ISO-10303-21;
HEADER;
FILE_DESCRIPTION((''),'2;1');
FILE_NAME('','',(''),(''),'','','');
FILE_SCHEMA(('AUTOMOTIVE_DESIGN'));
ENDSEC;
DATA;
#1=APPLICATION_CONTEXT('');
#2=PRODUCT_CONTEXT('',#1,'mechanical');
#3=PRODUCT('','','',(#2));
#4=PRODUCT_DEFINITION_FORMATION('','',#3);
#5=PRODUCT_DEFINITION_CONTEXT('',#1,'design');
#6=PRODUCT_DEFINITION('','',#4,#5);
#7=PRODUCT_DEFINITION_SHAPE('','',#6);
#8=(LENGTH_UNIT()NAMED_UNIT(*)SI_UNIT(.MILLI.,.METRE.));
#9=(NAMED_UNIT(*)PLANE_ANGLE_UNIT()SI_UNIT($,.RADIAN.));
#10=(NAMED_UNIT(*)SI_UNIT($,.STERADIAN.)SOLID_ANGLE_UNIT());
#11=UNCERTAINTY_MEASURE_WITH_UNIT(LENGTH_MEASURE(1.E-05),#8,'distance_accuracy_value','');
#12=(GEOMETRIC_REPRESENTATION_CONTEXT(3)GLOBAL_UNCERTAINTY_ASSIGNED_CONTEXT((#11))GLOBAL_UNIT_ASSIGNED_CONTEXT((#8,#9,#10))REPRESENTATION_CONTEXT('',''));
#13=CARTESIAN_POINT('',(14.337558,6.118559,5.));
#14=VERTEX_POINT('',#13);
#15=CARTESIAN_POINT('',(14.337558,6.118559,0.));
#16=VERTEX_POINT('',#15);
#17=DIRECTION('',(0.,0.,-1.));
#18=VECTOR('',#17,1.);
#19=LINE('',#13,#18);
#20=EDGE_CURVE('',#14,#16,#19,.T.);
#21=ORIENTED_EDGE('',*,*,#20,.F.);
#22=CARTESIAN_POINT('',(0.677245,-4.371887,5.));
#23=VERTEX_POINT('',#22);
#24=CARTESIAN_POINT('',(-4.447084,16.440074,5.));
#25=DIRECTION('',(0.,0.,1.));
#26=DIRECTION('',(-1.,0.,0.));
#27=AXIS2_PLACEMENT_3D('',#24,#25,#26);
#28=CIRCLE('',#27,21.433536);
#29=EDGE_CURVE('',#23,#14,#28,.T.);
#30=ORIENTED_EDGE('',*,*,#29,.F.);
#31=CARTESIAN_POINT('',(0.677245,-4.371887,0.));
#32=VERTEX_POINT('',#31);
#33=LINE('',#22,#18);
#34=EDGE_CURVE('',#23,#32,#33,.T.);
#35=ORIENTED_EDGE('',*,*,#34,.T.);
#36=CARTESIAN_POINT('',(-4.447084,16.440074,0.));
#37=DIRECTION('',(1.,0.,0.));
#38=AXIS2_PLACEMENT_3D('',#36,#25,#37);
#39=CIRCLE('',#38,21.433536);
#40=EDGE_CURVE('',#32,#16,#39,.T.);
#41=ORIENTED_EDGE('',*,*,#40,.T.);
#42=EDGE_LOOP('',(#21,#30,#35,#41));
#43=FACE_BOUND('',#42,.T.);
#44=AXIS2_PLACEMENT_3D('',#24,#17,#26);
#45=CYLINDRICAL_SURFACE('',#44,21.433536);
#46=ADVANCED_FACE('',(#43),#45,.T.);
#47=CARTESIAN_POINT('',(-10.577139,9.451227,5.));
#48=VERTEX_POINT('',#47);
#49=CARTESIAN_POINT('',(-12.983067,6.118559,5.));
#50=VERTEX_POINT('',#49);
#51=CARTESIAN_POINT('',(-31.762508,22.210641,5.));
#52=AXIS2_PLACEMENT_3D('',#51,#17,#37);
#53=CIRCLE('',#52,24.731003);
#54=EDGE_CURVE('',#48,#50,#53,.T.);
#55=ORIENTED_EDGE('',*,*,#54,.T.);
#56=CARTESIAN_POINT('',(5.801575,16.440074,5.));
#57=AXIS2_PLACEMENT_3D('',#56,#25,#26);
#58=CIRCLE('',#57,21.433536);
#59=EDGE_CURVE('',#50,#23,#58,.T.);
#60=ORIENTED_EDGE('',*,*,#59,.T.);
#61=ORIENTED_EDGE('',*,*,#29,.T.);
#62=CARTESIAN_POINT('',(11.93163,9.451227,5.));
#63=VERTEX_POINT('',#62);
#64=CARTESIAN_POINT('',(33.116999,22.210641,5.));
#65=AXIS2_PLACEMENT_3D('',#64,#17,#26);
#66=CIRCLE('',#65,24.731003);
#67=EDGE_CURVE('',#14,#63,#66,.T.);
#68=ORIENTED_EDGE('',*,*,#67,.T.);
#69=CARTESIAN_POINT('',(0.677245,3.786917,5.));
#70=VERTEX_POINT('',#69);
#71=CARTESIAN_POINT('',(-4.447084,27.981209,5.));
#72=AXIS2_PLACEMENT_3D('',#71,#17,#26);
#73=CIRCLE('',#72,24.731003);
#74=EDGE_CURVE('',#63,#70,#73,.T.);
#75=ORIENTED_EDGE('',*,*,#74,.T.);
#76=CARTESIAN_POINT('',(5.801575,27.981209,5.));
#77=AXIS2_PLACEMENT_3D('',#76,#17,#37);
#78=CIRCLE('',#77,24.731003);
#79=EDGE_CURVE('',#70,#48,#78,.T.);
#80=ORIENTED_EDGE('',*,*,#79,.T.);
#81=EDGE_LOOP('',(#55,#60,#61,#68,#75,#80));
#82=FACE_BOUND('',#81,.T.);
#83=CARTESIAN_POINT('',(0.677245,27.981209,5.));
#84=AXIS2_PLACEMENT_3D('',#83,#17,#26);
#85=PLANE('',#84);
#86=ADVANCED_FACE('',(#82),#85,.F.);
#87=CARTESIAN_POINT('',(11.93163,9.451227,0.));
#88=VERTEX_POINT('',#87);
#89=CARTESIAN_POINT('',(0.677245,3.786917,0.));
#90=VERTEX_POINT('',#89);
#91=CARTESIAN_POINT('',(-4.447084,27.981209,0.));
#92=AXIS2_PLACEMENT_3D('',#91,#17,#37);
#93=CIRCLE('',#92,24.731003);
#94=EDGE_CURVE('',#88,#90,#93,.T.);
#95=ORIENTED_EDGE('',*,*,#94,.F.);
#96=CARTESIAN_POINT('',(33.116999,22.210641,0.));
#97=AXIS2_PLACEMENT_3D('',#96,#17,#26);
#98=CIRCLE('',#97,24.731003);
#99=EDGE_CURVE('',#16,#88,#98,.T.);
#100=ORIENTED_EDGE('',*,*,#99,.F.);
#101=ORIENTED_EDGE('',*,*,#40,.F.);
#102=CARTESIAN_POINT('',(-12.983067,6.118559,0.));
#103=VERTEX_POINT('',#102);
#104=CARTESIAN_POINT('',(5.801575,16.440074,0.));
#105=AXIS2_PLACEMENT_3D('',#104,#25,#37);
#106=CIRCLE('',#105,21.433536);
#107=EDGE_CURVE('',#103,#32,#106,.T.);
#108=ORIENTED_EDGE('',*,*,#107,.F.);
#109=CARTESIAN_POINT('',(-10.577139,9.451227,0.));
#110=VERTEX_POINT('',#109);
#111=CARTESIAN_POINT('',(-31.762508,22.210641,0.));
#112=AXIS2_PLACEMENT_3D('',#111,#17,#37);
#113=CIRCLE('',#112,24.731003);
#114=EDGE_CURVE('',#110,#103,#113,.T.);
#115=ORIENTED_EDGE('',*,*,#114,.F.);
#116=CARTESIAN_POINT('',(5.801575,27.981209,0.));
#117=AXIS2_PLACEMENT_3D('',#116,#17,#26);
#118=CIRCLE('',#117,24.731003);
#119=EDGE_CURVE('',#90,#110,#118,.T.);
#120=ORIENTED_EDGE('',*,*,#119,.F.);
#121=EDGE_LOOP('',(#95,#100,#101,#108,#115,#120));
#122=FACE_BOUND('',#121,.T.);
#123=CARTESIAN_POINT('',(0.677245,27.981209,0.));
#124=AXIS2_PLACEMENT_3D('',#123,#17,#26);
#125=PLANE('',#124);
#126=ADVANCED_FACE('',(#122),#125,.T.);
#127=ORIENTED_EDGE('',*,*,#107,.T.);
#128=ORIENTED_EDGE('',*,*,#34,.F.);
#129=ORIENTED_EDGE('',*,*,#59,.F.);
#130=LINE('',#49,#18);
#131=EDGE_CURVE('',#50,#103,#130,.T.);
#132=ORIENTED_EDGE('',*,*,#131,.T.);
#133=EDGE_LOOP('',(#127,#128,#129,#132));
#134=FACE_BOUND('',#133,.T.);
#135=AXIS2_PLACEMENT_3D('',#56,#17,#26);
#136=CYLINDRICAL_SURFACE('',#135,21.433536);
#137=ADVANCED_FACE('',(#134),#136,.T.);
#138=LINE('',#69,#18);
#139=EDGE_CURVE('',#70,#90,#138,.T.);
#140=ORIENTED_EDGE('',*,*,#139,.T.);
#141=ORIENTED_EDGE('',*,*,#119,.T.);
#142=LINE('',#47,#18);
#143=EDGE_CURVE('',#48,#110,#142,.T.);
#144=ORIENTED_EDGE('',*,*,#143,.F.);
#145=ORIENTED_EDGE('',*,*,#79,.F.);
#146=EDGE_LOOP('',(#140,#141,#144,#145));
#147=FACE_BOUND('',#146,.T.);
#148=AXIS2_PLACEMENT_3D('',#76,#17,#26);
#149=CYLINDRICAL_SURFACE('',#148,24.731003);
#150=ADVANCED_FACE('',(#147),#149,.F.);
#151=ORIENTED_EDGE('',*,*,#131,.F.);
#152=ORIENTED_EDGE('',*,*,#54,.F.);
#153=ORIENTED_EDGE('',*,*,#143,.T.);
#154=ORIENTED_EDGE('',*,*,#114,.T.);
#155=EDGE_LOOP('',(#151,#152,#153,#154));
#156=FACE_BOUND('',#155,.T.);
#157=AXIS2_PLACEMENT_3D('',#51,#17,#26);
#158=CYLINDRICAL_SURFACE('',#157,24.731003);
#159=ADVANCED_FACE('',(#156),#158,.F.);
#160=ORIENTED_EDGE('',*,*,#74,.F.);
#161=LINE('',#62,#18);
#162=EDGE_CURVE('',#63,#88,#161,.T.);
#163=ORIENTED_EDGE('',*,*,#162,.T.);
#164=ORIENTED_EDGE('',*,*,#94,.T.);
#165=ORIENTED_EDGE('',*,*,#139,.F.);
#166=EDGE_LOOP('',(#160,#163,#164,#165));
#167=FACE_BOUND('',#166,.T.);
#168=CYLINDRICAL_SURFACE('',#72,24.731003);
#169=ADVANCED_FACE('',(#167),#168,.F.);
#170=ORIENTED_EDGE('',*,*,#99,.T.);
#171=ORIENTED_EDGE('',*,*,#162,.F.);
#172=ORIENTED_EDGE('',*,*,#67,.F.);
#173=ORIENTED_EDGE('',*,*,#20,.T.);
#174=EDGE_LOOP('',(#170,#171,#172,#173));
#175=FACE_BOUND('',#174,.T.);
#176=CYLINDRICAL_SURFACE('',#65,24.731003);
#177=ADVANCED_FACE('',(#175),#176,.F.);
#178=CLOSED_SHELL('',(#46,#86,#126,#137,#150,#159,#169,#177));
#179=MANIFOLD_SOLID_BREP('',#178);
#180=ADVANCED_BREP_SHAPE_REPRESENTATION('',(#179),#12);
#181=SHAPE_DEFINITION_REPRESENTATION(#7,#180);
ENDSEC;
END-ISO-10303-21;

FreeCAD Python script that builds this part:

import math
import FreeCAD as App
import Part
import Sketcher

V = App.Vector

doc = App.newDocument("Part")
body = doc.addObject("PartDesign::Body", "Body")

sketch1 = body.newObject("Sketcher::SketchObject", "Sketch")
sketch1.AttachmentSupport = (doc.getObject("XY_Plane"), [""])
sketch1.MapMode = "FlatFace"
sketch1.addGeometry(Part.ArcOfCircle(Part.Circle(V(-31.762508, 22.210641, 0), V(0, 0, 1), 24.731003), math.radians(-40.593236), math.radians(-31.059497)), False)
sketch1.addGeometry(Part.ArcOfCircle(Part.Circle(V(5.801575, 16.440074, 0), V(0, 0, 1), 21.433536), math.radians(-151.212719), math.radians(-130.025731)), False)
sketch1.addGeometry(Part.ArcOfCircle(Part.Circle(V(5.801575, 16.440074, 0), V(0, 0, 1), 21.433536), math.radians(-130.025731), math.radians(-103.832247)), False)
sketch1.addGeometry(Part.ArcOfCircle(Part.Circle(V(-4.447084, 16.440074, 0), V(0, 0, 1), 21.433536), math.radians(-76.167753), math.radians(-49.974269)), False)
sketch1.addGeometry(Part.ArcOfCircle(Part.Circle(V(-4.447084, 16.440074, 0), V(0, 0, 1), 21.433536), math.radians(-49.974269), math.radians(-28.787281)), False)
sketch1.addGeometry(Part.ArcOfCircle(Part.Circle(V(33.116999, 22.210641, 0), V(0, 0, 1), 24.731003), math.radians(-148.940503), math.radians(-139.406764)), False)
sketch1.addGeometry(Part.ArcOfCircle(Part.Circle(V(-4.447084, 27.981208, 0), V(0, 0, 1), 24.731003), math.radians(-56.125152), math.radians(-48.526424)), False)
sketch1.addGeometry(Part.ArcOfCircle(Part.Circle(V(-4.447084, 27.981209, 0), V(0, 0, 1), 24.731003), math.radians(-78.041529), math.radians(-56.125152)), False)
sketch1.addGeometry(Part.ArcOfCircle(Part.Circle(V(5.801575, 27.981209, 0), V(0, 0, 1), 24.731003), math.radians(-123.874848), math.radians(-101.958471)), False)
sketch1.addGeometry(Part.ArcOfCircle(Part.Circle(V(5.801575, 27.981208, 0), V(0, 0, 1), 24.731003), math.radians(-131.473576), math.radians(-123.874848)), False)
sketch1.addConstraint(Sketcher.Constraint("Coincident", 0, 1, 1, 1))
sketch1.addConstraint(Sketcher.Constraint("Tangent", 1, 2, 2, 1))
sketch1.addConstraint(Sketcher.Constraint("Coincident", 2, 2, 3, 1))
sketch1.addConstraint(Sketcher.Constraint("Tangent", 3, 2, 4, 1))
sketch1.addConstraint(Sketcher.Constraint("Coincident", 4, 2, 5, 2))
sketch1.addConstraint(Sketcher.Constraint("Coincident", 5, 1, 6, 2))
sketch1.addConstraint(Sketcher.Constraint("Tangent", 6, 1, 7, 2))
sketch1.addConstraint(Sketcher.Constraint("Coincident", 7, 1, 8, 2))
sketch1.addConstraint(Sketcher.Constraint("Tangent", 8, 1, 9, 2))
sketch1.addConstraint(Sketcher.Constraint("Coincident", 9, 1, 0, 2))
sketch1.addConstraint(Sketcher.Constraint("Equal", 1, 2))
sketch1.addConstraint(Sketcher.Constraint("Equal", 2, 3))
sketch1.addConstraint(Sketcher.Constraint("Equal", 3, 4))
sketch1.addConstraint(Sketcher.Constraint("Equal", 0, 5))
sketch1.addConstraint(Sketcher.Constraint("Equal", 5, 6))
sketch1.addConstraint(Sketcher.Constraint("Equal", 6, 7))
sketch1.addConstraint(Sketcher.Constraint("Equal", 7, 8))
sketch1.addConstraint(Sketcher.Constraint("Equal", 8, 9))
sketch1.addConstraint(Sketcher.Constraint("Horizontal", 2, 3, 3, 3))
sketch1.addConstraint(Sketcher.Constraint("Horizontal", 0, 3, 5, 3))
sketch1.addConstraint(Sketcher.Constraint("Horizontal", 7, 3, 8, 3))
sketch1.addConstraint(Sketcher.Constraint("Horizontal", 1, 2, 3, 2))
sketch1.addConstraint(Sketcher.Constraint("Horizontal", 0, 1, 4, 2))
sketch1.addConstraint(Sketcher.Constraint("Horizontal", 6, 1, 8, 1))
sketch1.addConstraint(Sketcher.Constraint("Horizontal", 5, 1, 9, 1))
sketch1.addConstraint(Sketcher.Constraint("Vertical", 4, 3, 6, 3))
sketch1.addConstraint(Sketcher.Constraint("Vertical", 3, 2, 6, 1))
sketch1.addConstraint(Sketcher.Constraint("DistanceX", -1, 1, 5, 3, 33.116999))
sketch1.addConstraint(Sketcher.Constraint("Radius", 0, 24.731003))
sketch1.addConstraint(Sketcher.Constraint("Radius", 1, 21.433536))
sketch1.addConstraint(Sketcher.Constraint("DistanceX", -1, 1, 3, 2, 9.337499))
sketch1.addConstraint(Sketcher.Constraint("DistanceX", 0, 3, -1, 1, 31.762508))
sketch1.addConstraint(Sketcher.Constraint("DistanceY", -1, 1, 0, 3, 22.210641))
sketch1.addConstraint(Sketcher.Constraint("DistanceY", -1, 1, 6, 3, 27.981208))
sketch1.addConstraint(Sketcher.Constraint("DistanceY", -1, 1, 0, 1, 6.118559))
sketch1.addConstraint(Sketcher.Constraint("DistanceY", -1, 1, 1, 2, 0.027222))
pad1 = body.newObject("PartDesign::Pad", "Pad")
pad1.Profile = sketch1
pad1.Length = 5

doc.recompute()
